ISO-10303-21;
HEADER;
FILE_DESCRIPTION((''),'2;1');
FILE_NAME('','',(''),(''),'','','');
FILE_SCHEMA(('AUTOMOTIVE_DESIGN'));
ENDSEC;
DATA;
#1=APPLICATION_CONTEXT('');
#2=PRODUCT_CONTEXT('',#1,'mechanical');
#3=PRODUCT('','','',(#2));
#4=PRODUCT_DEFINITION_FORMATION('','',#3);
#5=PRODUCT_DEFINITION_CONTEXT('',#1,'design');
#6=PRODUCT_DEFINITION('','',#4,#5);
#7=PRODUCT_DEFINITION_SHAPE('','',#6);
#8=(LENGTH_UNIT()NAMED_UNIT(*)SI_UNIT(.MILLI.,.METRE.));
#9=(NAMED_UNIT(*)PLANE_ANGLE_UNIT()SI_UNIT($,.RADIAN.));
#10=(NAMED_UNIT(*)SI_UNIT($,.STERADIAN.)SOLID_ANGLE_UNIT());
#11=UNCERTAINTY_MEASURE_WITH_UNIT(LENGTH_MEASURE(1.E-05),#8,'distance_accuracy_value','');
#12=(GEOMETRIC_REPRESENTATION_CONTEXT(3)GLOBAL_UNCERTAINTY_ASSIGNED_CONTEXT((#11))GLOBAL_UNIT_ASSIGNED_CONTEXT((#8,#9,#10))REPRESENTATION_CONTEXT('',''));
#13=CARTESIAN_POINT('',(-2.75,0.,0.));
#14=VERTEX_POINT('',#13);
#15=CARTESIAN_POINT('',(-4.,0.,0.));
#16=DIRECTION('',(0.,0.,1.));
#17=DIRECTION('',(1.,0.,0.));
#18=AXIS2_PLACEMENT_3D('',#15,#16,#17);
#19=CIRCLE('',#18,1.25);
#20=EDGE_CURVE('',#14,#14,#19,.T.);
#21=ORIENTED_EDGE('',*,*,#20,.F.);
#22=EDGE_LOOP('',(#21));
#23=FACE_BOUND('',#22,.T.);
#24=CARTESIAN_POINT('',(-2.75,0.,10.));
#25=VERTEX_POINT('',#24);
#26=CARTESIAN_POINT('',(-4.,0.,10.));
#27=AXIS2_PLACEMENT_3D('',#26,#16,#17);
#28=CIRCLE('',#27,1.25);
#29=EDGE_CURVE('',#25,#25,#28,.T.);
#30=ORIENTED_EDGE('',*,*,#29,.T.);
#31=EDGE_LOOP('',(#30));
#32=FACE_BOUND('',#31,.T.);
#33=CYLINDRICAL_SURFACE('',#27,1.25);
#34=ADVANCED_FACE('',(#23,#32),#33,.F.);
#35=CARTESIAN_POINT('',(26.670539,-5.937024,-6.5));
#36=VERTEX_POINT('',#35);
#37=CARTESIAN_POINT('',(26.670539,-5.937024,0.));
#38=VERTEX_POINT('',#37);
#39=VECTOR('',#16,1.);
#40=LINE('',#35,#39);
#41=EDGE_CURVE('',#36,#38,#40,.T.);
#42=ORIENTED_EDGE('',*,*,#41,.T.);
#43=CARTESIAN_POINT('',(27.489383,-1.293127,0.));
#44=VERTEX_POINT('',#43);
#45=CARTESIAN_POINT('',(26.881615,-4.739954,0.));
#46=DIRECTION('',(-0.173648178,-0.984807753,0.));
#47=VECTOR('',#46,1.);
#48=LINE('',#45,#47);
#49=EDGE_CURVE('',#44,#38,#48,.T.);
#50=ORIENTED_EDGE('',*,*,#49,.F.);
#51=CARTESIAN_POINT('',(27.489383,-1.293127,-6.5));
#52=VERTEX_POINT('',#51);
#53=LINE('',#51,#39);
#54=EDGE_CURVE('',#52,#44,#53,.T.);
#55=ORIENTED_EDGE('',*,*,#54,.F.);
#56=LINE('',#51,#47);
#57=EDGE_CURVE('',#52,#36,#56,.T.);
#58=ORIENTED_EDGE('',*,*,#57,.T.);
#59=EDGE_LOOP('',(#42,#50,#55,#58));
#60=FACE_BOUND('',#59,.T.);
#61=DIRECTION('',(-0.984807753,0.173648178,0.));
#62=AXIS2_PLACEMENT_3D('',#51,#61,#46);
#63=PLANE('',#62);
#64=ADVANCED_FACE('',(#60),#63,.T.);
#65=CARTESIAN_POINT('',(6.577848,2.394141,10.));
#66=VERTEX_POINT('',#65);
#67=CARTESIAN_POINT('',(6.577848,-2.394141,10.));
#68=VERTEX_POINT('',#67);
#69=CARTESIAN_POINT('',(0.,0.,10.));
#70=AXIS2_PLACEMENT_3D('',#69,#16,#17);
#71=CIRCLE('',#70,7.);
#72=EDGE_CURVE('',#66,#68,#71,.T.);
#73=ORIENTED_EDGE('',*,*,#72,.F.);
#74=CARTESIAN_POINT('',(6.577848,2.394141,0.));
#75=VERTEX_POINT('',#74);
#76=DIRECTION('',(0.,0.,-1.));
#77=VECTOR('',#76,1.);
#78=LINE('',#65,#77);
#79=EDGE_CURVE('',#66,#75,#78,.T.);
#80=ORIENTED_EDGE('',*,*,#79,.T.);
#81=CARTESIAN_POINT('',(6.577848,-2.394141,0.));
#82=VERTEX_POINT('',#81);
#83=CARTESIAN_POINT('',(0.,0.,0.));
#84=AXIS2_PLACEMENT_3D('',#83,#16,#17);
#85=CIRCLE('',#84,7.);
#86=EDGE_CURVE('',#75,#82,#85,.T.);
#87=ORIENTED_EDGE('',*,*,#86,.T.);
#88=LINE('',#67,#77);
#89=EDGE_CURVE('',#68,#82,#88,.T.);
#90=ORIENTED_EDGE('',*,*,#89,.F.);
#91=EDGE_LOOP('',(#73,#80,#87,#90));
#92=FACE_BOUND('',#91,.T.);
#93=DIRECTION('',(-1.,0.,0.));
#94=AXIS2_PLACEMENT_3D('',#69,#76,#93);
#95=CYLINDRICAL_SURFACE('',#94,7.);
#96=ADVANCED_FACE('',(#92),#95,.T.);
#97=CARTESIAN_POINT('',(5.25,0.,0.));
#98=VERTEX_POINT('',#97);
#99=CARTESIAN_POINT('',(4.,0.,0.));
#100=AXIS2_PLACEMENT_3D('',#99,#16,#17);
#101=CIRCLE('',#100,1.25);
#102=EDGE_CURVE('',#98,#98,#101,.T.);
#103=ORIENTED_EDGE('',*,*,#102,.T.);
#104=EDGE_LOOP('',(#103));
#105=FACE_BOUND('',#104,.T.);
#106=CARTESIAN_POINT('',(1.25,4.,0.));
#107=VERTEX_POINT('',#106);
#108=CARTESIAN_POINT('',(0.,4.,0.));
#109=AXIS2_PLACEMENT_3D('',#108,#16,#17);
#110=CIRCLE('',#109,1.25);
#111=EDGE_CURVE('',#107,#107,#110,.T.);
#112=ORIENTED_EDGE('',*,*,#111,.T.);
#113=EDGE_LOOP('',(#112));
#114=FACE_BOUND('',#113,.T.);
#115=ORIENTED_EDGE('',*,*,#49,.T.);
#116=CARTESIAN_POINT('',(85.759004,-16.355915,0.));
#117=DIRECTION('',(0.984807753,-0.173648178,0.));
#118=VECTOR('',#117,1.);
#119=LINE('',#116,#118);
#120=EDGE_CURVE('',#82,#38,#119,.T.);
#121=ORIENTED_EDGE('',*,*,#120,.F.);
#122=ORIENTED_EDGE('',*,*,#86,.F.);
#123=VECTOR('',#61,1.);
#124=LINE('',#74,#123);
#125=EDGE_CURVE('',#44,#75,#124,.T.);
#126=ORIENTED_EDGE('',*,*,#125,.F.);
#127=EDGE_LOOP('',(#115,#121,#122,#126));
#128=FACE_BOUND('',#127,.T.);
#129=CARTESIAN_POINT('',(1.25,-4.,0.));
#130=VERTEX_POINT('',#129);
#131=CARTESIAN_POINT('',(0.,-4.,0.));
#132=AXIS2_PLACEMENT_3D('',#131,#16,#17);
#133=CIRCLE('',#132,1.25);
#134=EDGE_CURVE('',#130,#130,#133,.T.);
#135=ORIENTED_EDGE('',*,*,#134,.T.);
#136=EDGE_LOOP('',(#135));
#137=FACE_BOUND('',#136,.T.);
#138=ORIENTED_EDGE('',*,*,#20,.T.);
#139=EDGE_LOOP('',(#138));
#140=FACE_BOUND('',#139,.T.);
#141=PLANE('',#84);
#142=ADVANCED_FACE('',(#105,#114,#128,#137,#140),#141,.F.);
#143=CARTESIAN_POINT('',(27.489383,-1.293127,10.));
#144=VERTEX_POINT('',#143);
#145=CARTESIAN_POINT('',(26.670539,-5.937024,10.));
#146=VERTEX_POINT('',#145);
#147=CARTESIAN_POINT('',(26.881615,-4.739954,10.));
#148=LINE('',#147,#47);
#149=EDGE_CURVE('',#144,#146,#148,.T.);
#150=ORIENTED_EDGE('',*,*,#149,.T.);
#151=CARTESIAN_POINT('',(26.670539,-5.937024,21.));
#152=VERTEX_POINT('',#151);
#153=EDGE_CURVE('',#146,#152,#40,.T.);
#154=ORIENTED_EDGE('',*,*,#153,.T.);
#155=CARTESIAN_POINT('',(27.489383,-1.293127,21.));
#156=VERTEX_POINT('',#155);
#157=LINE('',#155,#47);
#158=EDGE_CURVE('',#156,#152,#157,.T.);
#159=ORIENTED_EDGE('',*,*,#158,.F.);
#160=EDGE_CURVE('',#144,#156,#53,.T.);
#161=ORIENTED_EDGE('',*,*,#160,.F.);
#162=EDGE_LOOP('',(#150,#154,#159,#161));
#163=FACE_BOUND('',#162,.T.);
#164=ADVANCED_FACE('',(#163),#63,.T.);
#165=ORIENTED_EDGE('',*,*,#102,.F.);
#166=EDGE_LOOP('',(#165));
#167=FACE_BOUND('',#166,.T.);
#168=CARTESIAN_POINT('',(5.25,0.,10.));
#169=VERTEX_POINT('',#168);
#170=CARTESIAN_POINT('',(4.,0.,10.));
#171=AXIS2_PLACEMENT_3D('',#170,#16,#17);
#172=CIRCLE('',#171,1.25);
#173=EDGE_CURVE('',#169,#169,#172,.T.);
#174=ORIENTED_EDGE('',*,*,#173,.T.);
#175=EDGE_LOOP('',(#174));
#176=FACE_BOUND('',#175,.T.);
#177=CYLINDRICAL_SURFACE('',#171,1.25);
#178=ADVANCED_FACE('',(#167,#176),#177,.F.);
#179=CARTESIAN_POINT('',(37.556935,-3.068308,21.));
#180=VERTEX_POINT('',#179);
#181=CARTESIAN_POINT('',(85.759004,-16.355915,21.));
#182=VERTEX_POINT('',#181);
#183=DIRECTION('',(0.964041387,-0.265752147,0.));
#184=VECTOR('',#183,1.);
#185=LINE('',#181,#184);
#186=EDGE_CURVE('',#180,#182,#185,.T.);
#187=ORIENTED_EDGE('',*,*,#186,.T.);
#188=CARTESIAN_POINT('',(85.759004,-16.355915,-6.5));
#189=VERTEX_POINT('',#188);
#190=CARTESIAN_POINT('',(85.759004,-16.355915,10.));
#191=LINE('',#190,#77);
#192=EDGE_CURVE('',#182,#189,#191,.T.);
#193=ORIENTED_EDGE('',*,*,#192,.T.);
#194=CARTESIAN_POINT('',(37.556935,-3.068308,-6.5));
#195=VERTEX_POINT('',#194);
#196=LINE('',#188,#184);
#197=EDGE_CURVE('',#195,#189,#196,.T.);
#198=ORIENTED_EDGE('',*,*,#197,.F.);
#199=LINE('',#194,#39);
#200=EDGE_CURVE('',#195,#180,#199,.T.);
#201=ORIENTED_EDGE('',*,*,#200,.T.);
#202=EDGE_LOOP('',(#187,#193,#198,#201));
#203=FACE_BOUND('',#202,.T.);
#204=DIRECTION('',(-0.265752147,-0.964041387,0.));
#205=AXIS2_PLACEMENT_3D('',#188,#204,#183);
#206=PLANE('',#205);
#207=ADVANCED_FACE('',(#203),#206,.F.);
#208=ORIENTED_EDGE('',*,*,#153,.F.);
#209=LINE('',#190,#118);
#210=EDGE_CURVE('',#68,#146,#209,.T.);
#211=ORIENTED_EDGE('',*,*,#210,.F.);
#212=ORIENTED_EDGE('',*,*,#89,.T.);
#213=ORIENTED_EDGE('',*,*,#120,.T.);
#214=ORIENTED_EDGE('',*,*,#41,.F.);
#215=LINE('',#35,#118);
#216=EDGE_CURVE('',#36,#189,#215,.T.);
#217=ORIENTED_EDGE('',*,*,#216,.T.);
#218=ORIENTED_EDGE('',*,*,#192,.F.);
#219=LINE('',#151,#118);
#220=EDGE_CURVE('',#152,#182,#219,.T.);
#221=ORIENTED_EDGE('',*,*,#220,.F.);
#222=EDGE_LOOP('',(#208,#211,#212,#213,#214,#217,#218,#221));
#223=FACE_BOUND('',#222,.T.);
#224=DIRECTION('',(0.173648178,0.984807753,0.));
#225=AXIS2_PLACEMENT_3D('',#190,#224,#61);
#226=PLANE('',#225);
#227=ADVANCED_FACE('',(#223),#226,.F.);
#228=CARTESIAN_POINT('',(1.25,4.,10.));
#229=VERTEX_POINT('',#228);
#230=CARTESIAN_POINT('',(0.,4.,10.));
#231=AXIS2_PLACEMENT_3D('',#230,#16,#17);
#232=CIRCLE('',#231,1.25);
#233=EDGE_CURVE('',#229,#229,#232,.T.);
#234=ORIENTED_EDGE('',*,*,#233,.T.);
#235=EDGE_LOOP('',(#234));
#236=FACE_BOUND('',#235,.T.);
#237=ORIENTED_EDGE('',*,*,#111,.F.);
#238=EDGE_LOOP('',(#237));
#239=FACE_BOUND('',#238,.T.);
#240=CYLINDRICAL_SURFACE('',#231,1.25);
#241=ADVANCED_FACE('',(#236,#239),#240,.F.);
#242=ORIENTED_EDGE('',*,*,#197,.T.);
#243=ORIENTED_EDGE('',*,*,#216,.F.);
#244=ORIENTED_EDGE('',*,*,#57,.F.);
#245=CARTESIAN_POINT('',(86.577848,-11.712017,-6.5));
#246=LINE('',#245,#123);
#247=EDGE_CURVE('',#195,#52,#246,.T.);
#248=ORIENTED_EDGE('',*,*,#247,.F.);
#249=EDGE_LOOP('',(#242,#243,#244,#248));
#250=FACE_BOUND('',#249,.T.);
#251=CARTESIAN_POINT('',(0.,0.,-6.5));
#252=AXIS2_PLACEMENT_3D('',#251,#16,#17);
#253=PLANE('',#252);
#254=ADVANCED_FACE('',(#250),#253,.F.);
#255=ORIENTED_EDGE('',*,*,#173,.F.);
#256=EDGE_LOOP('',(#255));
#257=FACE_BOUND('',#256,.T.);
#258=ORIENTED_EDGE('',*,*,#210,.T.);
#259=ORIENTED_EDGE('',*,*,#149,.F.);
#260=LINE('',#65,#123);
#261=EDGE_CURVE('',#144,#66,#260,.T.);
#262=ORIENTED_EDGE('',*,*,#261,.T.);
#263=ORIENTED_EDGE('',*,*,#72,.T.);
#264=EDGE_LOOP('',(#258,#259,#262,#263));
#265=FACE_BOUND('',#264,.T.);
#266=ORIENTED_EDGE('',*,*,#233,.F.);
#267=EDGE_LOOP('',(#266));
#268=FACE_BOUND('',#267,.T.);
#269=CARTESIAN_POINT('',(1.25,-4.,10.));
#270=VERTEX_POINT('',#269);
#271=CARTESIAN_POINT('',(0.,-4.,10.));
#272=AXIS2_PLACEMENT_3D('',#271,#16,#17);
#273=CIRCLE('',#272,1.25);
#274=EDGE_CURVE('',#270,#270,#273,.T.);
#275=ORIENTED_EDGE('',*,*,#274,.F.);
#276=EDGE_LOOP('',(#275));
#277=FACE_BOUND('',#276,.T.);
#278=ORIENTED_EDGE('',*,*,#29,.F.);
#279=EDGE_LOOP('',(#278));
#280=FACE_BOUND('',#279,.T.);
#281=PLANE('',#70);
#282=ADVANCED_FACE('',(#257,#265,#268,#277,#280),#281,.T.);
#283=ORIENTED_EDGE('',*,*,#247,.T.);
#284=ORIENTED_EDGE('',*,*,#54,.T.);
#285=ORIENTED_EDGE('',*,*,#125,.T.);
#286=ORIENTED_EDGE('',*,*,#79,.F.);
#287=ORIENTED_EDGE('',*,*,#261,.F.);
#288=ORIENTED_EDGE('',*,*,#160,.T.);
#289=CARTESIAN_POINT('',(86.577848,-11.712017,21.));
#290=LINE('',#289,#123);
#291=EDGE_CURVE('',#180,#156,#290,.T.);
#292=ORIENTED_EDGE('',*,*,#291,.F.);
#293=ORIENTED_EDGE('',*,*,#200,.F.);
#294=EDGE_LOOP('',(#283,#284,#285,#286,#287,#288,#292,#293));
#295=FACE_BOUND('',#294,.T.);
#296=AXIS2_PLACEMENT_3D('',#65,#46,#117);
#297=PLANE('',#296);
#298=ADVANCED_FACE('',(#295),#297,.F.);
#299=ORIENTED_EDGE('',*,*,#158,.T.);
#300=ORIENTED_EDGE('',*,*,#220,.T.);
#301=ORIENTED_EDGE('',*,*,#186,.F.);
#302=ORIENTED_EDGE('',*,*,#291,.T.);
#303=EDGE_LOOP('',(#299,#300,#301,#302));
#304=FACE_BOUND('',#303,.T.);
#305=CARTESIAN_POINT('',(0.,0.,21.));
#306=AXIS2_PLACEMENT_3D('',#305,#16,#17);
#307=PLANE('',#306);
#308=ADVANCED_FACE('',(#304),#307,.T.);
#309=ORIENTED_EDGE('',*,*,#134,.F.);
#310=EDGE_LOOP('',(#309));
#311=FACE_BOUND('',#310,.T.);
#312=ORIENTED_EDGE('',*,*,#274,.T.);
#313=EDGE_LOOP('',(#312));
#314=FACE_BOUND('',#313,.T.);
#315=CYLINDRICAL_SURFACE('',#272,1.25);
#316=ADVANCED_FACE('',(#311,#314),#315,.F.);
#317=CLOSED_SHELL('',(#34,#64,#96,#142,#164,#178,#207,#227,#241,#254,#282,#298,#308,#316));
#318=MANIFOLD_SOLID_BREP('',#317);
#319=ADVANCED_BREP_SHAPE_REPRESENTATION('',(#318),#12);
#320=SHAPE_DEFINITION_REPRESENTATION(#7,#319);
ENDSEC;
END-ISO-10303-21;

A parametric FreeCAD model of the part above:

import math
import FreeCAD as App
import Part
import Sketcher
from FreeCAD import Vector
Q = App.Units.Quantity

doc = App.newDocument("Part")
params = doc.addObject("Spreadsheet::Sheet", "Params")
for row, (alias, value) in enumerate([
    ("sketch1_radius", "7 mm"),
    ("pad1_length", "10 mm"),
    ("sketch2_length", "60 mm"),
    ("pad2_length", "11 mm"),
    ("pad2_length2", "16.5 mm"),
    ("sketch3_length", "50 mm"),
    ("sketch4_diameter", "2.5 mm"),
    ("hole_diameter", "2.5 mm"),
], start=1):
    params.set(f"A{row}", alias)
    params.set(f"B{row}", "=" + value)
    params.setAlias(f"B{row}", alias)

body = doc.addObject("PartDesign::Body", "Body")

# Sketch on XY plane
sketch1 = body.newObject("Sketcher::SketchObject", "Sketch")
sketch1.AttachmentSupport = (doc.getObject("XY_Plane"), [""])
sketch1.MapMode = "FlatFace"
sketch1.addGeometry(Part.LineSegment(Vector(86.577848, -11.712017, 0), Vector(6.577848, 2.394141, 0)), False)
sketch1.addGeometry(Part.ArcOfCircle(Part.Circle(Vector(0, 0, 0), Vector(0, 0, 1), 7), math.radians(20), math.radians(340)), False)
sketch1.addGeometry(Part.LineSegment(Vector(6.577848, -2.394141, 0), Vector(85.759004, -16.355915, 0)), False)
sketch1.addGeometry(Part.LineSegment(Vector(85.759004, -16.355915, 0), Vector(86.577848, -11.712017, 0)), False)
sketch1.addConstraint(Sketcher.Constraint("Coincident", 0, 2, 1, 1))
sketch1.addConstraint(Sketcher.Constraint("Coincident", 1, 2, 2, 1))
sketch1.addConstraint(Sketcher.Constraint("Coincident", 2, 2, 3, 1))
sketch1.addConstraint(Sketcher.Constraint("Coincident", 3, 2, 0, 1))
sketch1.addConstraint(Sketcher.Constraint("Coincident", 1, 3, -1, 1))
sketch1.addConstraint(Sketcher.Constraint("Parallel", 0, 2))
sketch1.addConstraint(Sketcher.Constraint("Perpendicular", 2, 3))
sketch1.addConstraint(Sketcher.Constraint("Vertical", 0, 2, 1, 2))
sketch1.addConstraint(Sketcher.Constraint("Radius", 1, Q("7 mm")))
sketch1.addConstraint(Sketcher.Constraint("Angle", 0, Q("170 deg")))
sketch1.addConstraint(Sketcher.Constraint("DistanceX", 1, 2, 3, 2, Q("80 mm")))
sketch1.addConstraint(Sketcher.Constraint("DistanceX", -1, 1, 0, 2, Q("6.577848 mm")))
sketch1.setExpression("Constraints[8]", "Params.sketch1_radius")
pad1 = body.newObject("PartDesign::Pad", "Pad")
pad1.Profile = sketch1
pad1.setExpression("Length", "Params.pad1_length")

# Sketch on XY plane
sketch2 = body.newObject("Sketcher::SketchObject", "Sketch001")
sketch2.AttachmentSupport = (doc.getObject("XY_Plane"), [""])
sketch2.MapMode = "FlatFace"
sketch2.AttachmentOffset = App.Placement(Vector(0, 0, 10), App.Rotation())
sketch2.addGeometry(Part.LineSegment(Vector(86.577848, -11.712017, 0), Vector(27.489383, -1.293127, 0)), False)
sketch2.addGeometry(Part.LineSegment(Vector(27.489383, -1.293127, 0), Vector(26.670539, -5.937024, 0)), False)
sketch2.addGeometry(Part.LineSegment(Vector(26.670539, -5.937024, 0), Vector(85.759004, -16.355915, 0)), False)
sketch2.addGeometry(Part.LineSegment(Vector(85.759004, -16.355915, 0), Vector(86.577848, -11.712017, 0)), False)
sketch2.addConstraint(Sketcher.Constraint("Coincident", 0, 2, 1, 1))
sketch2.addConstraint(Sketcher.Constraint("Coincident", 1, 2, 2, 1))
sketch2.addConstraint(Sketcher.Constraint("Coincident", 2, 2, 3, 1))
sketch2.addConstraint(Sketcher.Constraint("Coincident", 3, 2, 0, 1))
sketch2.addConstraint(Sketcher.Constraint("Perpendicular", 0, 1))
sketch2.addConstraint(Sketcher.Constraint("Perpendicular", 1, 2))
sketch2.addConstraint(Sketcher.Constraint("Perpendicular", 2, 3))
sketch2.addConstraint(Sketcher.Constraint("Angle", 0, Q("170 deg")))
sketch2.addConstraint(Sketcher.Constraint("Distance", 0, Q("60 mm")))
sketch2.addConstraint(Sketcher.Constraint("DistanceX", -1, 1, 1, 2, Q("26.670539 mm")))
sketch2.addConstraint(Sketcher.Constraint("DistanceX", -1, 1, 3, 2, Q("86.577848 mm")))
sketch2.addConstraint(Sketcher.Constraint("DistanceY", 0, 2, -1, 1, Q("1.293127 mm")))
sketch2.setExpression("Constraints[8]", "Params.sketch2_length")
pad2 = body.newObject("PartDesign::Pad", "Pad001")
pad2.Profile = sketch2
pad2.Type = "TwoLengths"
pad2.setExpression("Length", "Params.pad2_length")
pad2.setExpression("Length2", "Params.pad2_length2")

# Sketch on XY plane
sketch3 = body.newObject("Sketcher::SketchObject", "Sketch002")
sketch3.AttachmentSupport = (doc.getObject("XY_Plane"), [""])
sketch3.MapMode = "FlatFace"
sketch3.AttachmentOffset = App.Placement(Vector(0, 0, 21), App.Rotation())
sketch3.addGeometry(Part.LineSegment(Vector(85.759004, -16.355915, 0), Vector(86.577848, -11.712017, 0)), False)
sketch3.addGeometry(Part.LineSegment(Vector(86.577848, -11.712017, 0), Vector(37.556935, -3.068308, 0)), False)
sketch3.addGeometry(Part.LineSegment(Vector(37.556935, -3.068308, 0), Vector(85.759004, -16.355915, 0)), False)
sketch3.addConstraint(Sketcher.Constraint("Coincident", 0, 2, 1, 1))
sketch3.addConstraint(Sketcher.Constraint("Coincident", 1, 2, 2, 1))
sketch3.addConstraint(Sketcher.Constraint("Coincident", 2, 2, 0, 1))
sketch3.addConstraint(Sketcher.Constraint("Perpendicular", 0, 1))
sketch3.addConstraint(Sketcher.Constraint("Angle", 0, Q("80 deg")))
sketch3.addConstraint(Sketcher.Constraint("Distance", 2, Q("50 mm")))
sketch3.addConstraint(Sketcher.Constraint("Distance", 1, Q("49.77714 mm")))
sketch3.addConstraint(Sketcher.Constraint("DistanceX", -1, 1, 0, 2, Q("86.577848 mm")))
sketch3.addConstraint(Sketcher.Constraint("DistanceY", 0, 2, -1, 1, Q("11.712017 mm")))
sketch3.setExpression("Constraints[5]", "Params.sketch3_length")
pocket1 = body.newObject("PartDesign::Pocket", "Pocket")
pocket1.Profile = sketch3
pocket1.Type = "ThroughAll"

# Sketch on XY plane
sketch4 = body.newObject("Sketcher::SketchObject", "Sketch003")
sketch4.AttachmentSupport = (doc.getObject("XY_Plane"), [""])
sketch4.MapMode = "FlatFace"
sketch4.AttachmentOffset = App.Placement(Vector(0, 0, 10), App.Rotation())
sketch4.addGeometry(Part.Circle(Vector(-4, 0, 0), Vector(0, 0, 1), 1.25), False)
sketch4.addGeometry(Part.Circle(Vector(0, 4, 0), Vector(0, 0, 1), 1.25), False)
sketch4.addGeometry(Part.Circle(Vector(4, 0, 0), Vector(0, 0, 1), 1.25), False)
sketch4.addGeometry(Part.Circle(Vector(0, -4, 0), Vector(0, 0, 1), 1.25), False)
sketch4.addConstraint(Sketcher.Constraint("Equal", 0, 1))
sketch4.addConstraint(Sketcher.Constraint("Equal", 1, 2))
sketch4.addConstraint(Sketcher.Constraint("Equal", 2, 3))
sketch4.addConstraint(Sketcher.Constraint("Symmetric", 0, 3, 2, 3, -1, 1))
sketch4.addConstraint(Sketcher.Constraint("Symmetric", 1, 3, 3, 3, -1, 1))
sketch4.addConstraint(Sketcher.Constraint("PointOnObject", 0, 3, -1))
sketch4.addConstraint(Sketcher.Constraint("PointOnObject", 1, 3, -2))
sketch4.addConstraint(Sketcher.Constraint("Diameter", 0, Q("2.5 mm")))
sketch4.addConstraint(Sketcher.Constraint("DistanceX", 0, 3, -1, 1, Q("4 mm")))
sketch4.addConstraint(Sketcher.Constraint("DistanceY", -1, 1, 1, 3, Q("4 mm")))
sketch4.setExpression("Constraints[7]", "Params.sketch4_diameter")
doc.recompute()
hole = body.newObject("PartDesign::Hole", "Hole")
hole.Profile = sketch4
hole.ThreadType = "None"
hole.setExpression("Diameter", "Params.hole_diameter")
hole.DepthType = "ThroughAll"

doc.recompute()
